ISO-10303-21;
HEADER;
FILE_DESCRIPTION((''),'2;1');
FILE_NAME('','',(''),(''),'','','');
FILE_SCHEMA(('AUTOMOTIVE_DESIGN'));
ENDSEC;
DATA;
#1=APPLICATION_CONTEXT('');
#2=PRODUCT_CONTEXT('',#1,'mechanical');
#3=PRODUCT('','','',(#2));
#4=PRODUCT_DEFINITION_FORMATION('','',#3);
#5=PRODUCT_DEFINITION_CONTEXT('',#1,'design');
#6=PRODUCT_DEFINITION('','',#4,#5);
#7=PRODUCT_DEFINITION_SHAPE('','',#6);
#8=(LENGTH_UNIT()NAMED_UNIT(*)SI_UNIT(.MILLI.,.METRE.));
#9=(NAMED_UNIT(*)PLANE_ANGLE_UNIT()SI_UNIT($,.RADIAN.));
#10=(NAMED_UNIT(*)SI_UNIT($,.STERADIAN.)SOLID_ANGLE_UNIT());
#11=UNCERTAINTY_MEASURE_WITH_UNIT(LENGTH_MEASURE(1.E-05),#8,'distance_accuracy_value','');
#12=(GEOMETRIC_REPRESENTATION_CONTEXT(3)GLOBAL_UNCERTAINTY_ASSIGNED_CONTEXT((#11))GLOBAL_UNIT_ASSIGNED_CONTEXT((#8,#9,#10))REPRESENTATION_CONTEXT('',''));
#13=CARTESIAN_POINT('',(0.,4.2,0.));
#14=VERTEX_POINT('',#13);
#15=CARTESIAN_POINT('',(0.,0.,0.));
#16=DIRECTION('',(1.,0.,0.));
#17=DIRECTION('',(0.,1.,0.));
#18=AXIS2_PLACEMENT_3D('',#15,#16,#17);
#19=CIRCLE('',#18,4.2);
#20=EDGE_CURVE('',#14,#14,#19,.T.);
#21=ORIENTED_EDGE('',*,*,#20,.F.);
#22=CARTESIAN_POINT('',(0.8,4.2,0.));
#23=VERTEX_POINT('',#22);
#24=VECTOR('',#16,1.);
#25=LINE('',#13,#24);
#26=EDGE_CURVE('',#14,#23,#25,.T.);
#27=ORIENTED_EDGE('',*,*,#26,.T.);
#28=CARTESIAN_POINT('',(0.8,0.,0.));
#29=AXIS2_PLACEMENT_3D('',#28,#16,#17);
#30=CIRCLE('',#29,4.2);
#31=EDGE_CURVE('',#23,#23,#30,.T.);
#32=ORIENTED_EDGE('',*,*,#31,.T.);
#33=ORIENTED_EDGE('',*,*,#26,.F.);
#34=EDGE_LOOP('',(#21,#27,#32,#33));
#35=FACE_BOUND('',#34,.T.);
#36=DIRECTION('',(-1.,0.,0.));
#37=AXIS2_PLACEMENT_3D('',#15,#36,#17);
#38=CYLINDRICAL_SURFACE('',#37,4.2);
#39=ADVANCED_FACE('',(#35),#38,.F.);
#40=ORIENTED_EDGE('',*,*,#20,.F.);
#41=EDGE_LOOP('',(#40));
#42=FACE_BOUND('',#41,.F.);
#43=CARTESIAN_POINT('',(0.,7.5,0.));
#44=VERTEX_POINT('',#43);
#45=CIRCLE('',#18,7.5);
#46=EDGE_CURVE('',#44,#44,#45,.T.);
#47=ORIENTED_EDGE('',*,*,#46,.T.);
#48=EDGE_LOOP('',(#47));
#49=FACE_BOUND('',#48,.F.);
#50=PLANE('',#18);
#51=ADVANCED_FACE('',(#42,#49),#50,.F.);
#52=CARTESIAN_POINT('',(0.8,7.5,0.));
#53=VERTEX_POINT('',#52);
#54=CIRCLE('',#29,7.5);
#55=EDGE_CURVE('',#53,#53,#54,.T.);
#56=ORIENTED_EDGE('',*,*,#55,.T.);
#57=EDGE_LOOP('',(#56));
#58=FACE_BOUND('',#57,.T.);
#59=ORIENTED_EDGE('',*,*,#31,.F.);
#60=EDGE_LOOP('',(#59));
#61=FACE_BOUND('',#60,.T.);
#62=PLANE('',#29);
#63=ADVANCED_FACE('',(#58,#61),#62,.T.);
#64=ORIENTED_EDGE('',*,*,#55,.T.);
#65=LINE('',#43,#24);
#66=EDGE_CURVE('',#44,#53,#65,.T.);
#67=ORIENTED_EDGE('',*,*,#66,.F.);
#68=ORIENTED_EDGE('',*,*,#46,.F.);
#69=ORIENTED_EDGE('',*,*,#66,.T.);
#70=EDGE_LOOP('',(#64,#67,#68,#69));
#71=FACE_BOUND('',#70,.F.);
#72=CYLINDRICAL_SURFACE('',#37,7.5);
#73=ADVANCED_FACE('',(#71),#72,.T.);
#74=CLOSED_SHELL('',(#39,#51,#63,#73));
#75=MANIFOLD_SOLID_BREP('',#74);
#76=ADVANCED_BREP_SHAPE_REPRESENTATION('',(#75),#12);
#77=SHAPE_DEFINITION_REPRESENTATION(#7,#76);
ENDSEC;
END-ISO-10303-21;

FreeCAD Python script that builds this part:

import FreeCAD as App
import Part
import Sketcher

V = App.Vector

doc = App.newDocument("Part")
body = doc.addObject("PartDesign::Body", "Body")

sketch1 = body.newObject("Sketcher::SketchObject", "Sketch")
sketch1.AttachmentSupport = (doc.getObject("YZ_Plane"), [""])
sketch1.MapMode = "FlatFace"
sketch1.addGeometry([
    Part.Circle(V(0, 0, 0), V(0, 0, 1), 7.5),
    Part.Circle(V(0, 0, 0), V(0, 0, 1), 4.2),
], False)
sketch1.addConstraint([
    Sketcher.Constraint("Coincident", 0, 3, -1, 1),
    Sketcher.Constraint("Coincident", 1, 3, -1, 1),
    Sketcher.Constraint("Diameter", 0, 15.0),
    Sketcher.Constraint("Diameter", 1, 8.4),
])
pad1 = body.newObject("PartDesign::Pad", "Pad")
pad1.Profile = sketch1
pad1.Length = 0.8

doc.recompute()
